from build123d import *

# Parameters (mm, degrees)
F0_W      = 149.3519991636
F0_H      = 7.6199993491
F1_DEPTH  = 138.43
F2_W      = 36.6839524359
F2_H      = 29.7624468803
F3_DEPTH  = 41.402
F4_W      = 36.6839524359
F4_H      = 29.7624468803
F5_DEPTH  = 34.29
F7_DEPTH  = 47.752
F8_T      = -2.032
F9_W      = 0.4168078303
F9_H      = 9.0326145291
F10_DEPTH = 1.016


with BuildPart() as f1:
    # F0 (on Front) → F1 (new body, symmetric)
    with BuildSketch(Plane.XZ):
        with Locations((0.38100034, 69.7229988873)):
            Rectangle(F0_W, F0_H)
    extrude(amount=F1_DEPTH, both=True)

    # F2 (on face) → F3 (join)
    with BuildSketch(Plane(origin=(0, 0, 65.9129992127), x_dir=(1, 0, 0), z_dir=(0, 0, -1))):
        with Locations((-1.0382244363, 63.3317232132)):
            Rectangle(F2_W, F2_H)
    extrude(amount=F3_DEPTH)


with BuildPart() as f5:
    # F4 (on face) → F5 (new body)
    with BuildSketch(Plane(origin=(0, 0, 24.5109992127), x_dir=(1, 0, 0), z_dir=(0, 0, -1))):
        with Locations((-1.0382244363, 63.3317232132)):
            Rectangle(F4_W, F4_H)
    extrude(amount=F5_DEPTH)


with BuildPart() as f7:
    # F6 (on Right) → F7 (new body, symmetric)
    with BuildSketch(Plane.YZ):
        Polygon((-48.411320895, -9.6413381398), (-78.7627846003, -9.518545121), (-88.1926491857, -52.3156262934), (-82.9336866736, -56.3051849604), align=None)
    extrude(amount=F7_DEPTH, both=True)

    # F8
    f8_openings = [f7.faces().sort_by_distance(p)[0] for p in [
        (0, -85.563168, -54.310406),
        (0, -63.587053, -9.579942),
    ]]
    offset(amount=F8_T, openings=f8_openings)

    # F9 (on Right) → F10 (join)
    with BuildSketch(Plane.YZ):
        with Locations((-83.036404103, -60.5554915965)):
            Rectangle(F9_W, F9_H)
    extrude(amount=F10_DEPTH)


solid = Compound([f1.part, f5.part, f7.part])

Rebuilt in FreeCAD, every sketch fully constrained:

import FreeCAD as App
import Part
import Sketcher
from FreeCAD import Vector
Q = App.Units.Quantity


def faces_at(feature, points):
    """Names of the faces that lie closest to the given points."""
    faces = feature.Shape.Faces
    near = lambda p: min(range(len(faces)), key=lambda i: faces[i].distToShape(Part.Vertex(*p))[0])
    return sorted({f"Face{near(p) + 1}" for p in points})

doc = App.newDocument("Part")
params = doc.addObject("Spreadsheet::Sheet", "Params")
for row, (alias, value) in enumerate([
    ("sketch1_height", "0.3 in"),
    ("sketch1_width", "5.88 in"),
    ("pad1_length", "10.9 in"),
    ("pad2_length", "1.63 in"),
    ("pad3_length", "1.35 in"),
    ("pad4_length", "3.76 in"),
    ("thickness_wall", "0.08 in"),
    ("pad5_length", "0.04 in"),
], start=1):
    params.set(f"A{row}", alias)
    params.set(f"B{row}", "=" + value)
    params.setAlias(f"B{row}", alias)

body = doc.addObject("PartDesign::Body", "Body")

# Sketch on XZ plane
sketch1 = body.newObject("Sketcher::SketchObject", "Sketch")
sketch1.AttachmentSupport = (doc.getObject("XZ_Plane"), [""])
sketch1.MapMode = "FlatFace"
sketch1.addGeometry([
    Part.LineSegment(Vector(-74.294999, 73.532999, 0), Vector(-74.294999, 65.912999, 0)),
    Part.LineSegment(Vector(-74.294999, 65.912999, 0), Vector(75.057, 65.912999, 0)),
    Part.LineSegment(Vector(75.057, 65.912999, 0), Vector(75.057, 73.532999, 0)),
    Part.LineSegment(Vector(75.057, 73.532999, 0), Vector(-74.294999, 73.532999, 0)),
], False)
sketch1.addConstraint([
    Sketcher.Constraint("Coincident", 0, 2, 1, 1),
    Sketcher.Constraint("Coincident", 1, 2, 2, 1),
    Sketcher.Constraint("Coincident", 2, 2, 3, 1),
    Sketcher.Constraint("Coincident", 3, 2, 0, 1),
    Sketcher.Constraint("Vertical", 0),
    Sketcher.Constraint("Horizontal", 1),
    Sketcher.Constraint("Vertical", 2),
    Sketcher.Constraint("Horizontal", 3),
    Sketcher.Constraint("DistanceY", 0, 2, 0, 1, Q("0.3 in")),
    Sketcher.Constraint("DistanceX", 1, 1, 1, 2, Q("5.88 in")),
    Sketcher.Constraint("DistanceX", 0, 2, -1, 1, Q("2.925 in")),
    Sketcher.Constraint("DistanceY", -1, 1, 0, 2, Q("2.595 in")),
])
sketch1.setExpression("Constraints[8]", "Params.sketch1_height")
sketch1.setExpression("Constraints[9]", "Params.sketch1_width")
pad1 = body.newObject("PartDesign::Pad", "Pad")
pad1.Profile = sketch1
pad1.setExpression("Length", "Params.pad1_length")
pad1.Midplane = True

# Sketch on XY plane
sketch2 = body.newObject("Sketcher::SketchObject", "Sketch001")
sketch2.AttachmentSupport = (doc.getObject("XY_Plane"), [""])
sketch2.MapMode = "FlatFace"
sketch2.AttachmentOffset = App.Placement(Vector(0, 0, 2.595 * 25.4), App.Rotation())
sketch2.addGeometry([
    Part.LineSegment(Vector(-19.380201, -78.212947, 0), Vector(-19.380201, -48.4505, 0)),
    Part.LineSegment(Vector(-19.380201, -48.4505, 0), Vector(17.303752, -48.4505, 0)),
    Part.LineSegment(Vector(17.303752, -48.4505, 0), Vector(17.303752, -78.212947, 0)),
    Part.LineSegment(Vector(17.303752, -78.212947, 0), Vector(-19.380201, -78.212947, 0)),
], False)
sketch2.addConstraint([
    Sketcher.Constraint("Coincident", 0, 2, 1, 1),
    Sketcher.Constraint("Coincident", 1, 2, 2, 1),
    Sketcher.Constraint("Coincident", 2, 2, 3, 1),
    Sketcher.Constraint("Coincident", 3, 2, 0, 1),
    Sketcher.Constraint("Vertical", 0),
    Sketcher.Constraint("Horizontal", 1),
    Sketcher.Constraint("Vertical", 2),
    Sketcher.Constraint("Horizontal", 3),
    Sketcher.Constraint("DistanceX", 0, 2, -1, 1, Q("0.763 in")),
    Sketcher.Constraint("DistanceY", 0, 2, -1, 1, Q("1.9075 in")),
    Sketcher.Constraint("DistanceX", 1, 1, 1, 2, 36.683952),
    Sketcher.Constraint("DistanceY", 0, 1, 0, 2, 29.762447),
])
pad2 = body.newObject("PartDesign::Pad", "Pad001")
pad2.Profile = sketch2
pad2.setExpression("Length", "Params.pad2_length")
pad2.Reversed = True
body2 = doc.addObject("PartDesign::Body", "Body001")

# Sketch on XY plane
sketch3 = body2.newObject("Sketcher::SketchObject", "Sketch002")
sketch3.AttachmentSupport = (doc.getObject("XY_Plane001"), [""])
sketch3.MapMode = "FlatFace"
sketch3.AttachmentOffset = App.Placement(Vector(0, 0, 0.965 * 25.4), App.Rotation())
sketch3.addGeometry([
    Part.LineSegment(Vector(-19.380201, -78.212947, 0), Vector(-19.380201, -48.4505, 0)),
    Part.LineSegment(Vector(-19.380201, -48.4505, 0), Vector(17.303752, -48.4505, 0)),
    Part.LineSegment(Vector(17.303752, -48.4505, 0), Vector(17.303752, -78.212947, 0)),
    Part.LineSegment(Vector(17.303752, -78.212947, 0), Vector(-19.380201, -78.212947, 0)),
], False)
sketch3.addConstraint([
    Sketcher.Constraint("Coincident", 0, 2, 1, 1),
    Sketcher.Constraint("Coincident", 1, 2, 2, 1),
    Sketcher.Constraint("Coincident", 2, 2, 3, 1),
    Sketcher.Constraint("Coincident", 3, 2, 0, 1),
    Sketcher.Constraint("Vertical", 0),
    Sketcher.Constraint("Horizontal", 1),
    Sketcher.Constraint("Vertical", 2),
    Sketcher.Constraint("Horizontal", 3),
    Sketcher.Constraint("DistanceX", 0, 2, -1, 1, Q("0.763 in")),
    Sketcher.Constraint("DistanceY", 0, 2, -1, 1, Q("1.9075 in")),
    Sketcher.Constraint("DistanceX", 1, 1, 1, 2, 36.683952),
    Sketcher.Constraint("DistanceY", 0, 1, 0, 2, 29.762447),
])
pad3 = body2.newObject("PartDesign::Pad", "Pad002")
pad3.Profile = sketch3
pad3.setExpression("Length", "Params.pad3_length")
pad3.Reversed = True
body3 = doc.addObject("PartDesign::Body", "Body002")

# Sketch on YZ plane
sketch4 = body3.newObject("Sketcher::SketchObject", "Sketch003")
sketch4.AttachmentSupport = (doc.getObject("YZ_Plane002"), [""])
sketch4.MapMode = "FlatFace"
sketch4.addGeometry([
    Part.LineSegment(Vector(-48.411321, -9.641338, 0), Vector(-78.762785, -9.518545, 0)),
    Part.LineSegment(Vector(-78.762785, -9.518545, 0), Vector(-88.192649, -52.315626, 0)),
    Part.LineSegment(Vector(-88.192649, -52.315626, 0), Vector(-82.933687, -56.305185, 0)),
    Part.LineSegment(Vector(-82.933687, -56.305185, 0), Vector(-48.411321, -9.641338, 0)),
], False)
sketch4.addConstraint([
    Sketcher.Constraint("Coincident", 0, 2, 1, 1),
    Sketcher.Constraint("Coincident", 1, 2, 2, 1),
    Sketcher.Constraint("Coincident", 2, 2, 3, 1),
    Sketcher.Constraint("Coincident", 3, 2, 0, 1),
    Sketcher.Constraint("DistanceX", 1, 2, -1, 1, 88.192649),
    Sketcher.Constraint("DistanceX", 3, 2, -1, 1, 48.411321),
    Sketcher.Constraint("DistanceY", 3, 2, -1, 1, 9.641338),
    Sketcher.Constraint("DistanceY", 1, 2, 0, 2, 42.797081),
    Sketcher.Constraint("DistanceY", 2, 2, 1, 2, 3.989559),
    Sketcher.Constraint("DistanceY", 1, 2, 3, 2, 42.674288),
    Sketcher.Constraint("Distance", 0, 30.351712),
    Sketcher.Constraint("Distance", 2, 6.601005),
])
pad4 = body3.newObject("PartDesign::Pad", "Pad003")
pad4.Profile = sketch4
pad4.setExpression("Length", "Params.pad4_length")
pad4.Midplane = True
doc.recompute()

thickness = body3.newObject("PartDesign::Thickness", "Thickness")
thickness.Base = (pad4, faces_at(pad4, [(0, -85.563, -54.31), (0, -63.587, -9.58)]))
thickness.setExpression("Value", "Params.thickness_wall")
thickness.Reversed = True
thickness.Join = "Arc"

# Sketch on YZ plane
sketch5 = body3.newObject("Sketcher::SketchObject", "Sketch004")
sketch5.AttachmentSupport = (doc.getObject("YZ_Plane002"), [""])
sketch5.MapMode = "FlatFace"
sketch5.addGeometry([
    Part.LineSegment(Vector(-83.244808, -56.039184, 0), Vector(-83.244808, -65.071799, 0)),
    Part.LineSegment(Vector(-83.244808, -65.071799, 0), Vector(-82.828, -65.071799, 0)),
    Part.LineSegment(Vector(-82.828, -65.071799, 0), Vector(-82.828, -56.039184, 0)),
    Part.LineSegment(Vector(-82.828, -56.039184, 0), Vector(-83.244808, -56.039184, 0)),
], False)
sketch5.addConstraint([
    Sketcher.Constraint("Coincident", 0, 2, 1, 1),
    Sketcher.Constraint("Coincident", 1, 2, 2, 1),
    Sketcher.Constraint("Coincident", 2, 2, 3, 1),
    Sketcher.Constraint("Coincident", 3, 2, 0, 1),
    Sketcher.Constraint("Vertical", 0),
    Sketcher.Constraint("Horizontal", 1),
    Sketcher.Constraint("Vertical", 2),
    Sketcher.Constraint("Horizontal", 3),
    Sketcher.Constraint("DistanceY", 0, 2, -1, 1, 65.071799),
    Sketcher.Constraint("DistanceX", 1, 2, -1, 1, 82.828),
    Sketcher.Constraint("DistanceX", 1, 1, 1, 2, 0.416808),
    Sketcher.Constraint("DistanceY", 0, 2, 0, 1, 9.032615),
])
pad5 = body3.newObject("PartDesign::Pad", "Pad004")
pad5.Profile = sketch5
pad5.setExpression("Length", "Params.pad5_length")

doc.recompute()
